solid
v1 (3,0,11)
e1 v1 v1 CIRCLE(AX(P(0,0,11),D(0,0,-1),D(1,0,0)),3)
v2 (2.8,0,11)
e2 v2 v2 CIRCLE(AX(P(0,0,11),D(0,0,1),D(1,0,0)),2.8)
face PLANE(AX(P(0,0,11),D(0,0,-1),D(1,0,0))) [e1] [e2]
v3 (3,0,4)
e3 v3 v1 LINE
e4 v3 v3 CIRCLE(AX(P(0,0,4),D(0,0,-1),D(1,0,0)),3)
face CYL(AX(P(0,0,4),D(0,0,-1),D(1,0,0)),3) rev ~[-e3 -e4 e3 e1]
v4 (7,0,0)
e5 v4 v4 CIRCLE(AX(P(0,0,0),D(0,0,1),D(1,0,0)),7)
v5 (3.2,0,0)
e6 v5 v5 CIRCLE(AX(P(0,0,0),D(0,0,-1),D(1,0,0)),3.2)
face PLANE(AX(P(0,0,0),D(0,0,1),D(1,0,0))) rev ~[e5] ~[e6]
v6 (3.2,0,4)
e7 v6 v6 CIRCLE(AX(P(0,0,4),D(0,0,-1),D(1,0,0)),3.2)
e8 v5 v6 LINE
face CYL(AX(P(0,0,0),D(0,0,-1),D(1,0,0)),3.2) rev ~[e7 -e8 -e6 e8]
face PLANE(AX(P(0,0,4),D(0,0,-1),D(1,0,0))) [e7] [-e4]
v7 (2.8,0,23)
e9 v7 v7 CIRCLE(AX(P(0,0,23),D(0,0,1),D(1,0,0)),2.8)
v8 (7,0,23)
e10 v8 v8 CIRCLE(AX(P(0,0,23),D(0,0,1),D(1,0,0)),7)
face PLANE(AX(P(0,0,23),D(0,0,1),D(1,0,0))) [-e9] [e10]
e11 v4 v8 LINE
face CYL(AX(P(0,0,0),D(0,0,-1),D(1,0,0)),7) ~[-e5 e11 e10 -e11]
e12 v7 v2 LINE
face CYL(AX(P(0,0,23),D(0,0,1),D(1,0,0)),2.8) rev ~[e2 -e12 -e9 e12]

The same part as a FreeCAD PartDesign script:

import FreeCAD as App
import Part
import Sketcher

V = App.Vector
Q = App.Units.Quantity

doc = App.newDocument("Part")
body = doc.addObject("PartDesign::Body", "Body")

# Sketch on XY plane
sketch1 = body.newObject("Sketcher::SketchObject", "Sketch")
sketch1.AttachmentSupport = (doc.getObject("XY_Plane"), [""])
sketch1.MapMode = "FlatFace"
sketch1.addGeometry(Part.Circle(V(0, 0, 0), V(0, 0, 1), 7), False)
sketch1.addConstraint([
    Sketcher.Constraint("Coincident", 0, 3, -1, 1),
    Sketcher.Constraint("Diameter", 0, Q("14 mm")),
])
pad1 = body.newObject("PartDesign::Pad", "Pad")
pad1.Profile = sketch1
pad1.Length = 23

# Sketch on XY plane
sketch2 = body.newObject("Sketcher::SketchObject", "Sketch001")
sketch2.AttachmentSupport = (doc.getObject("XY_Plane"), [""])
sketch2.MapMode = "FlatFace"
sketch2.AttachmentOffset = App.Placement(V(0, 0, 23), App.Rotation())
sketch2.addGeometry(Part.Circle(V(0, 0, 0), V(0, 0, 1), 2.8), False)
sketch2.addConstraint([
    Sketcher.Constraint("Coincident", 0, 3, -1, 1),
    Sketcher.Constraint("Diameter", 0, Q("5.6 mm")),
])
pocket1 = body.newObject("PartDesign::Pocket", "Pocket")
pocket1.Profile = sketch2
pocket1.Type = "ThroughAll"

# Sketch on XY plane
sketch3 = body.newObject("Sketcher::SketchObject", "Sketch002")
sketch3.AttachmentSupport = (doc.getObject("XY_Plane"), [""])
sketch3.MapMode = "FlatFace"
sketch3.addGeometry(Part.Circle(V(0, 0, 0), V(0, 0, 1), 3.2), False)
sketch3.addConstraint([
    Sketcher.Constraint("Coincident", 0, 3, -1, 1),
    Sketcher.Constraint("Diameter", 0, Q("6.4 mm")),
])
pocket2 = body.newObject("PartDesign::Pocket", "Pocket001")
pocket2.Profile = sketch3
pocket2.Length = 4
pocket2.Reversed = True

# Sketch on XY plane
sketch4 = body.newObject("Sketcher::SketchObject", "Sketch003")
sketch4.AttachmentSupport = (doc.getObject("XY_Plane"), [""])
sketch4.MapMode = "FlatFace"
sketch4.AttachmentOffset = App.Placement(V(0, 0, 4), App.Rotation())
sketch4.addGeometry(Part.Circle(V(0, 0, 0), V(0, 0, 1), 3), False)
sketch4.addConstraint([
    Sketcher.Constraint("Coincident", 0, 3, -1, 1),
    Sketcher.Constraint("Diameter", 0, Q("6 mm")),
])
pocket3 = body.newObject("PartDesign::Pocket", "Pocket002")
pocket3.Profile = sketch4
pocket3.Length = 7
pocket3.Reversed = True

doc.recompute()
